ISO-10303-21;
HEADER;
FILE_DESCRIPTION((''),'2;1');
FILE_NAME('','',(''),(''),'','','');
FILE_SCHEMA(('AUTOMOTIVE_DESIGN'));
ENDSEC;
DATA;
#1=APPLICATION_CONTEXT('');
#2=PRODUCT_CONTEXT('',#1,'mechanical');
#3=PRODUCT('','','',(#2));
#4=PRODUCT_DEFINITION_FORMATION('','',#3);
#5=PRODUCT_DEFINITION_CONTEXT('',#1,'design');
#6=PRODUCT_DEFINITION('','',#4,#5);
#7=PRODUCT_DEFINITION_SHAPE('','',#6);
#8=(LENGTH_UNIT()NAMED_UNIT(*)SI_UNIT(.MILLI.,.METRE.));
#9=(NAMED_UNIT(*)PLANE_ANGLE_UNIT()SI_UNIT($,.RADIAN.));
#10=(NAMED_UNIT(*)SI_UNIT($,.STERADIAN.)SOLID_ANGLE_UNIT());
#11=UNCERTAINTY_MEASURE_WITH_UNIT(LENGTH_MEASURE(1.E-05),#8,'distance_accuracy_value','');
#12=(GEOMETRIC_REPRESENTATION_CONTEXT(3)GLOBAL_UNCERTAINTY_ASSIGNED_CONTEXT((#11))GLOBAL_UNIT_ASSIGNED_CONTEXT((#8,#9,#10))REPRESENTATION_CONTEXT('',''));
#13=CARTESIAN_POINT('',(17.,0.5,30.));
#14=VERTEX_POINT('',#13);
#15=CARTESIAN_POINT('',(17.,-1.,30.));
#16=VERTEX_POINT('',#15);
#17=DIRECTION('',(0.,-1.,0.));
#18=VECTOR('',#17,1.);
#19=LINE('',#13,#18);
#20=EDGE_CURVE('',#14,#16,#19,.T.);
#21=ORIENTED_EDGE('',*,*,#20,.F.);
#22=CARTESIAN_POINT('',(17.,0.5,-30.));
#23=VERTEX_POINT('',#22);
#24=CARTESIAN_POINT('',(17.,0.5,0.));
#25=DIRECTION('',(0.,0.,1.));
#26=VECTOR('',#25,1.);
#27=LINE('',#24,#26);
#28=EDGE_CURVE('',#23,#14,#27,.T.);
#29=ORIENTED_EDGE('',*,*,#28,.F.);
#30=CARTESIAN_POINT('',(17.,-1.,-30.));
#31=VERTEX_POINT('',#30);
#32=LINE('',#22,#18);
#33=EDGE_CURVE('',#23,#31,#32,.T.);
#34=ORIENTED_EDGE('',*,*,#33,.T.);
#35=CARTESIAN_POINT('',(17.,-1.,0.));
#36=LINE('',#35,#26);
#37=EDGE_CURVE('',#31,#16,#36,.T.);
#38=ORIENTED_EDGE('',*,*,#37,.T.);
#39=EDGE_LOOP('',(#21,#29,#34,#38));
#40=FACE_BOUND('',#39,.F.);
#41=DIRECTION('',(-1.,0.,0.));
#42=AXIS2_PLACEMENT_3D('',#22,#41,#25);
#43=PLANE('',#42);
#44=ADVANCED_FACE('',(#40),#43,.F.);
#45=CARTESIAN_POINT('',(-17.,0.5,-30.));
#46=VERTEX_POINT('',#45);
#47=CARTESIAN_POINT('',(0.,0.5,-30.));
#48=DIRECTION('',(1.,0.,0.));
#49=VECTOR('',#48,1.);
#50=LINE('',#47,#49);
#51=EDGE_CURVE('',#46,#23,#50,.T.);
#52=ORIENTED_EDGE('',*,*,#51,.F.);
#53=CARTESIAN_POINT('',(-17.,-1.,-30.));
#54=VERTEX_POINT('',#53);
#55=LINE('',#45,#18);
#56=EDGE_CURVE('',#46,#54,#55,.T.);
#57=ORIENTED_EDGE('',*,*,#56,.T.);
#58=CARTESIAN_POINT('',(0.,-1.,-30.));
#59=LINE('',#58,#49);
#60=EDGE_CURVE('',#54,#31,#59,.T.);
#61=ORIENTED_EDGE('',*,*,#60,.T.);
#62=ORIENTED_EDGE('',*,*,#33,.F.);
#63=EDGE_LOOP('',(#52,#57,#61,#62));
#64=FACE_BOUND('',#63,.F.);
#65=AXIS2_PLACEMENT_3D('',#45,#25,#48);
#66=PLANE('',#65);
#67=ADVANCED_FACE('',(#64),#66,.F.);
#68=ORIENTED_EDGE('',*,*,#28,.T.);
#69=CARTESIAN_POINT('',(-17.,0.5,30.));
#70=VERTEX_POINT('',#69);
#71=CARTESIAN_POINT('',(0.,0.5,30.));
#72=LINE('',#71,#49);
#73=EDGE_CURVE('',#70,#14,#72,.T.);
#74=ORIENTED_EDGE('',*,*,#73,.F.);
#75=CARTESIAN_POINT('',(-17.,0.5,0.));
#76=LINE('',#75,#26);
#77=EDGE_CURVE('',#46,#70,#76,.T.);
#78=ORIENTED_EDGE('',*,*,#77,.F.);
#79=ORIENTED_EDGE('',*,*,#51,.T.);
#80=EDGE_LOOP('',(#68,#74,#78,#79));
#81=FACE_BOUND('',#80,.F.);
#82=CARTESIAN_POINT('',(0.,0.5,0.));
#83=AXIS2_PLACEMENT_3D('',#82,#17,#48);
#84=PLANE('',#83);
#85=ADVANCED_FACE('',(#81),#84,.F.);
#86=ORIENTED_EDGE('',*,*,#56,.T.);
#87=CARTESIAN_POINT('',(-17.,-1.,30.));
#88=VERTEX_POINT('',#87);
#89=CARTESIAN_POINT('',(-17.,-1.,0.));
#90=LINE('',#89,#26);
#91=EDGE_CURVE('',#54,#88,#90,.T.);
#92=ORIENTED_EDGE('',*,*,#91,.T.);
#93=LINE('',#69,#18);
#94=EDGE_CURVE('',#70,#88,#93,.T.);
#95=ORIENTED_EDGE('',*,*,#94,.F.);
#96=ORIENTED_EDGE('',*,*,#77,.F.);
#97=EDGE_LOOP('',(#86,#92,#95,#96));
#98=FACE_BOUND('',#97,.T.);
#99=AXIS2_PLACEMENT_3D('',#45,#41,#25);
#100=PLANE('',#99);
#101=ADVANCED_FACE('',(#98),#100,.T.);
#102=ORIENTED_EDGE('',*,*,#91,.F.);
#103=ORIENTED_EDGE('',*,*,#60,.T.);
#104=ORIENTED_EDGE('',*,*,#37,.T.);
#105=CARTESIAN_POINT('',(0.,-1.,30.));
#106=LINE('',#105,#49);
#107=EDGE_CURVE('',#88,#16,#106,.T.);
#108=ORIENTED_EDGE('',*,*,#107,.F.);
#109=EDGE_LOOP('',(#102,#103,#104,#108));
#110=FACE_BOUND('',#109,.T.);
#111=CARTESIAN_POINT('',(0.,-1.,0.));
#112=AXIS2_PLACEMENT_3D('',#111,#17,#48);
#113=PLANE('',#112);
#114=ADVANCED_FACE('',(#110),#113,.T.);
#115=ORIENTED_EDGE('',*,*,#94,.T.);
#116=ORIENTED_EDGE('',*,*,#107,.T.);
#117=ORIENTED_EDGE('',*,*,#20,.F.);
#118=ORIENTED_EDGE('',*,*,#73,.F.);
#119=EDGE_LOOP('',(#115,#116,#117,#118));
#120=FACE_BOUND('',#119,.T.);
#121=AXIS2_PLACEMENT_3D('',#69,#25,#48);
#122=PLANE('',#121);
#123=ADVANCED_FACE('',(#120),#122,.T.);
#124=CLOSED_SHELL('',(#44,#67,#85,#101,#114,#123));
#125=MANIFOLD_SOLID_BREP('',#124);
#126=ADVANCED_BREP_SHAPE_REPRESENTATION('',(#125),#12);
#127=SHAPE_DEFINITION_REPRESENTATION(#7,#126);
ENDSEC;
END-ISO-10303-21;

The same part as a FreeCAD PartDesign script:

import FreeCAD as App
import Part
import Sketcher

V = App.Vector
Q = App.Units.Quantity


def add_polygon(sketch, points):
    """Adds a closed chain of lines whose ends are joined by coincident constraints."""
    first, n = sketch.GeometryCount, len(points)
    for a, b in zip(points, points[1:] + points[:1]):
        sketch.addGeometry(Part.LineSegment(App.Vector(*a, 0), App.Vector(*b, 0)), False)
    for i in range(n):
        sketch.addConstraint(Sketcher.Constraint("Coincident", first + i, 2, first + (i + 1) % n, 1))

doc = App.newDocument("Part")
params = doc.addObject("Spreadsheet::Sheet", "Params")
for row, (alias, value) in enumerate([
    ("sketch1_width", "34 mm"),
    ("sketch1_height", "60 mm"),
    ("pad1_length", "1.5 mm"),
], start=1):
    params.set(f"A{row}", alias)
    params.set(f"B{row}", "=" + value)
    params.setAlias(f"B{row}", alias)

body = doc.addObject("PartDesign::Body", "Body")

# Sketch on XZ plane
sketch1 = body.newObject("Sketcher::SketchObject", "Sketch")
sketch1.AttachmentSupport = (doc.getObject("XZ_Plane"), [""])
sketch1.MapMode = "FlatFace"
add_polygon(sketch1, [(-17, 30), (-17, -30), (17, -30), (17, 30)])  # lines 0-3
sketch1.addConstraint(Sketcher.Constraint("Vertical", 0))
sketch1.addConstraint(Sketcher.Constraint("Horizontal", 1))
sketch1.addConstraint(Sketcher.Constraint("Vertical", 2))
sketch1.addConstraint(Sketcher.Constraint("Horizontal", 3))
sketch1.addConstraint(Sketcher.Constraint("Symmetric", 0, 2, 2, 2, -1, 1))
sketch1.addConstraint(Sketcher.Constraint("DistanceX", 1, 1, 1, 2, Q("34 mm")))
sketch1.addConstraint(Sketcher.Constraint("DistanceY", 0, 2, 0, 1, Q("60 mm")))
sketch1.setExpression("Constraints[9]", "Params.sketch1_width")
sketch1.setExpression("Constraints[10]", "Params.sketch1_height")
pad1 = body.newObject("PartDesign::Pad", "Pad")
pad1.Profile = sketch1
pad1.setExpression("Length", "Params.pad1_length")
body2 = doc.addObject("PartDesign::Body", "Body001")
doc.recompute()

body.Placement = App.Placement(V(0, 0.5, 0), App.Rotation(V(0, 0, 1), 0))
boolean = body2.newObject("PartDesign::Boolean", "Boolean")
boolean.Type = "Fuse"
boolean.addObjects([body])

doc.recompute()
